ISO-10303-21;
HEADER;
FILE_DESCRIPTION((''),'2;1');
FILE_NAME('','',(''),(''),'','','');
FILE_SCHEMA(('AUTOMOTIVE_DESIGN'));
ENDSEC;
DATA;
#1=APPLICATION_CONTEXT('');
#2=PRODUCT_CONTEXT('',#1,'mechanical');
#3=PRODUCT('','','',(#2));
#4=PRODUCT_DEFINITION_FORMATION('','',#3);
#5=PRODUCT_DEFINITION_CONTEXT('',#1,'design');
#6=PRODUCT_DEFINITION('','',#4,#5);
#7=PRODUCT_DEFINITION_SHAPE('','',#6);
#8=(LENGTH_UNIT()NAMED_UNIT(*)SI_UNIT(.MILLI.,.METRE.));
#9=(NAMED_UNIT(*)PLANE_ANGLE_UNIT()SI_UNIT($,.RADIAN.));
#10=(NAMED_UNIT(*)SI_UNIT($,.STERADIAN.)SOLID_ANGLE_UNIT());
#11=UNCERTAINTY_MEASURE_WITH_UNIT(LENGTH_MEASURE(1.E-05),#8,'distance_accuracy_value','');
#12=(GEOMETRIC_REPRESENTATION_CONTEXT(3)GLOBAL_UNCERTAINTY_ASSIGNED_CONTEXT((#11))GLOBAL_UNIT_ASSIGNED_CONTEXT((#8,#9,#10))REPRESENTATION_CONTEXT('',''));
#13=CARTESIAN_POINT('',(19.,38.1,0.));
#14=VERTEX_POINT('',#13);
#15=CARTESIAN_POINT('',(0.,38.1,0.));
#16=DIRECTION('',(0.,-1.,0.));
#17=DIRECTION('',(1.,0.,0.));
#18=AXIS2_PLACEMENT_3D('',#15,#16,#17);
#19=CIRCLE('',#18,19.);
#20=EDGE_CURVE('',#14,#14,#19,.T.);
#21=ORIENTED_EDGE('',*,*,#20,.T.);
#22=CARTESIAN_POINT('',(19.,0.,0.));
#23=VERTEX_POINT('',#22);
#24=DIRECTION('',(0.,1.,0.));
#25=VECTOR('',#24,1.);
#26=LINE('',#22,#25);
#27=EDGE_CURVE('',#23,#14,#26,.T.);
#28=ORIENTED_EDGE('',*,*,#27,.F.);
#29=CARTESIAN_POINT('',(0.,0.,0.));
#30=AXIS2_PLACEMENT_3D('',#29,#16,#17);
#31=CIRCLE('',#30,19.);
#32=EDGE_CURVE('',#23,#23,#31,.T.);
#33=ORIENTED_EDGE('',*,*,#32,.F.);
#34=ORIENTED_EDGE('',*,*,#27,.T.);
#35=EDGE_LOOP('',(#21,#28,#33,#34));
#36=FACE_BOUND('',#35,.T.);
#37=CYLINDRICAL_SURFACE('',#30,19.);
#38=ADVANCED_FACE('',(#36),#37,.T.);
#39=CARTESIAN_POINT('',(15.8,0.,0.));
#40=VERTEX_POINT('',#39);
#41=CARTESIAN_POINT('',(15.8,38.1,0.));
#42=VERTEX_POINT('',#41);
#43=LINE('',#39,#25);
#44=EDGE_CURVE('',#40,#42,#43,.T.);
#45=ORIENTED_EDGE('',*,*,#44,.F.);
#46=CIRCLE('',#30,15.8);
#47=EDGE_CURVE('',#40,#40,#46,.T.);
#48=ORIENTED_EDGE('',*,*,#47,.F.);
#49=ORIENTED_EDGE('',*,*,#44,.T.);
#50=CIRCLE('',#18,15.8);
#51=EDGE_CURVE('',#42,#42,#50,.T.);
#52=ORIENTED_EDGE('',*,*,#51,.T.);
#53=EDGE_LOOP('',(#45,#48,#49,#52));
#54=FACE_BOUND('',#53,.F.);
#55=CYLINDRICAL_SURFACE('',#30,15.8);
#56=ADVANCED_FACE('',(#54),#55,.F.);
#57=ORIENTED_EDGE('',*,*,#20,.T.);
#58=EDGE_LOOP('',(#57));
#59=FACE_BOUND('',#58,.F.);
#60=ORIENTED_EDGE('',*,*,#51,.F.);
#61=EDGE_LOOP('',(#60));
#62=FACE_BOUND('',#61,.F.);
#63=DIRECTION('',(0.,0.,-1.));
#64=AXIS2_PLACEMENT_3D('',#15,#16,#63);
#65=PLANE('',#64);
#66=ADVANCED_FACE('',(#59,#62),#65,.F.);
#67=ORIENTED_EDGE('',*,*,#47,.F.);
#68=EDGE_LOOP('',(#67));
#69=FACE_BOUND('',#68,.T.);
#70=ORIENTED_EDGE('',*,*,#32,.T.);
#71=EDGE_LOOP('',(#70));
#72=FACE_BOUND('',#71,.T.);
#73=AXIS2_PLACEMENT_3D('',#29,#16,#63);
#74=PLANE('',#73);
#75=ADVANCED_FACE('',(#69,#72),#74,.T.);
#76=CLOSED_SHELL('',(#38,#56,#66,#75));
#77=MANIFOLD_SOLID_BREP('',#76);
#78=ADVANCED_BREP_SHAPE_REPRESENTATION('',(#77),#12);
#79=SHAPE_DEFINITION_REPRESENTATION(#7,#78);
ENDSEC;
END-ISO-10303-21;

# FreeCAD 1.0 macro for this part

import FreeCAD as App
import Part
import Sketcher

V = App.Vector
Q = App.Units.Quantity

doc = App.newDocument("Part")
body = doc.addObject("PartDesign::Body", "Body")

sketch1 = body.newObject("Sketcher::SketchObject", "Sketch")
sketch1.AttachmentSupport = (doc.getObject("XZ_Plane"), [""])
sketch1.MapMode = "FlatFace"
sketch1.addGeometry(Part.Circle(V(0, 0, 0), V(0, 0, 1), 19), False)
sketch1.addGeometry(Part.Circle(V(0, 0, 0), V(0, 0, 1), 16), False)
sketch1.addConstraint(Sketcher.Constraint("Coincident", 0, 3, -1, 1))
sketch1.addConstraint(Sketcher.Constraint("Coincident", 1, 3, -1, 1))
sketch1.addConstraint(Sketcher.Constraint("Diameter", 0, Q("38 mm")))
sketch1.addConstraint(Sketcher.Constraint("Diameter", 1, Q("31.6 mm")))
pad1 = body.newObject("PartDesign::Pad", "Pad")
pad1.Profile = sketch1
pad1.Length = 38.1
pad1.Reversed = True

doc.recompute()
